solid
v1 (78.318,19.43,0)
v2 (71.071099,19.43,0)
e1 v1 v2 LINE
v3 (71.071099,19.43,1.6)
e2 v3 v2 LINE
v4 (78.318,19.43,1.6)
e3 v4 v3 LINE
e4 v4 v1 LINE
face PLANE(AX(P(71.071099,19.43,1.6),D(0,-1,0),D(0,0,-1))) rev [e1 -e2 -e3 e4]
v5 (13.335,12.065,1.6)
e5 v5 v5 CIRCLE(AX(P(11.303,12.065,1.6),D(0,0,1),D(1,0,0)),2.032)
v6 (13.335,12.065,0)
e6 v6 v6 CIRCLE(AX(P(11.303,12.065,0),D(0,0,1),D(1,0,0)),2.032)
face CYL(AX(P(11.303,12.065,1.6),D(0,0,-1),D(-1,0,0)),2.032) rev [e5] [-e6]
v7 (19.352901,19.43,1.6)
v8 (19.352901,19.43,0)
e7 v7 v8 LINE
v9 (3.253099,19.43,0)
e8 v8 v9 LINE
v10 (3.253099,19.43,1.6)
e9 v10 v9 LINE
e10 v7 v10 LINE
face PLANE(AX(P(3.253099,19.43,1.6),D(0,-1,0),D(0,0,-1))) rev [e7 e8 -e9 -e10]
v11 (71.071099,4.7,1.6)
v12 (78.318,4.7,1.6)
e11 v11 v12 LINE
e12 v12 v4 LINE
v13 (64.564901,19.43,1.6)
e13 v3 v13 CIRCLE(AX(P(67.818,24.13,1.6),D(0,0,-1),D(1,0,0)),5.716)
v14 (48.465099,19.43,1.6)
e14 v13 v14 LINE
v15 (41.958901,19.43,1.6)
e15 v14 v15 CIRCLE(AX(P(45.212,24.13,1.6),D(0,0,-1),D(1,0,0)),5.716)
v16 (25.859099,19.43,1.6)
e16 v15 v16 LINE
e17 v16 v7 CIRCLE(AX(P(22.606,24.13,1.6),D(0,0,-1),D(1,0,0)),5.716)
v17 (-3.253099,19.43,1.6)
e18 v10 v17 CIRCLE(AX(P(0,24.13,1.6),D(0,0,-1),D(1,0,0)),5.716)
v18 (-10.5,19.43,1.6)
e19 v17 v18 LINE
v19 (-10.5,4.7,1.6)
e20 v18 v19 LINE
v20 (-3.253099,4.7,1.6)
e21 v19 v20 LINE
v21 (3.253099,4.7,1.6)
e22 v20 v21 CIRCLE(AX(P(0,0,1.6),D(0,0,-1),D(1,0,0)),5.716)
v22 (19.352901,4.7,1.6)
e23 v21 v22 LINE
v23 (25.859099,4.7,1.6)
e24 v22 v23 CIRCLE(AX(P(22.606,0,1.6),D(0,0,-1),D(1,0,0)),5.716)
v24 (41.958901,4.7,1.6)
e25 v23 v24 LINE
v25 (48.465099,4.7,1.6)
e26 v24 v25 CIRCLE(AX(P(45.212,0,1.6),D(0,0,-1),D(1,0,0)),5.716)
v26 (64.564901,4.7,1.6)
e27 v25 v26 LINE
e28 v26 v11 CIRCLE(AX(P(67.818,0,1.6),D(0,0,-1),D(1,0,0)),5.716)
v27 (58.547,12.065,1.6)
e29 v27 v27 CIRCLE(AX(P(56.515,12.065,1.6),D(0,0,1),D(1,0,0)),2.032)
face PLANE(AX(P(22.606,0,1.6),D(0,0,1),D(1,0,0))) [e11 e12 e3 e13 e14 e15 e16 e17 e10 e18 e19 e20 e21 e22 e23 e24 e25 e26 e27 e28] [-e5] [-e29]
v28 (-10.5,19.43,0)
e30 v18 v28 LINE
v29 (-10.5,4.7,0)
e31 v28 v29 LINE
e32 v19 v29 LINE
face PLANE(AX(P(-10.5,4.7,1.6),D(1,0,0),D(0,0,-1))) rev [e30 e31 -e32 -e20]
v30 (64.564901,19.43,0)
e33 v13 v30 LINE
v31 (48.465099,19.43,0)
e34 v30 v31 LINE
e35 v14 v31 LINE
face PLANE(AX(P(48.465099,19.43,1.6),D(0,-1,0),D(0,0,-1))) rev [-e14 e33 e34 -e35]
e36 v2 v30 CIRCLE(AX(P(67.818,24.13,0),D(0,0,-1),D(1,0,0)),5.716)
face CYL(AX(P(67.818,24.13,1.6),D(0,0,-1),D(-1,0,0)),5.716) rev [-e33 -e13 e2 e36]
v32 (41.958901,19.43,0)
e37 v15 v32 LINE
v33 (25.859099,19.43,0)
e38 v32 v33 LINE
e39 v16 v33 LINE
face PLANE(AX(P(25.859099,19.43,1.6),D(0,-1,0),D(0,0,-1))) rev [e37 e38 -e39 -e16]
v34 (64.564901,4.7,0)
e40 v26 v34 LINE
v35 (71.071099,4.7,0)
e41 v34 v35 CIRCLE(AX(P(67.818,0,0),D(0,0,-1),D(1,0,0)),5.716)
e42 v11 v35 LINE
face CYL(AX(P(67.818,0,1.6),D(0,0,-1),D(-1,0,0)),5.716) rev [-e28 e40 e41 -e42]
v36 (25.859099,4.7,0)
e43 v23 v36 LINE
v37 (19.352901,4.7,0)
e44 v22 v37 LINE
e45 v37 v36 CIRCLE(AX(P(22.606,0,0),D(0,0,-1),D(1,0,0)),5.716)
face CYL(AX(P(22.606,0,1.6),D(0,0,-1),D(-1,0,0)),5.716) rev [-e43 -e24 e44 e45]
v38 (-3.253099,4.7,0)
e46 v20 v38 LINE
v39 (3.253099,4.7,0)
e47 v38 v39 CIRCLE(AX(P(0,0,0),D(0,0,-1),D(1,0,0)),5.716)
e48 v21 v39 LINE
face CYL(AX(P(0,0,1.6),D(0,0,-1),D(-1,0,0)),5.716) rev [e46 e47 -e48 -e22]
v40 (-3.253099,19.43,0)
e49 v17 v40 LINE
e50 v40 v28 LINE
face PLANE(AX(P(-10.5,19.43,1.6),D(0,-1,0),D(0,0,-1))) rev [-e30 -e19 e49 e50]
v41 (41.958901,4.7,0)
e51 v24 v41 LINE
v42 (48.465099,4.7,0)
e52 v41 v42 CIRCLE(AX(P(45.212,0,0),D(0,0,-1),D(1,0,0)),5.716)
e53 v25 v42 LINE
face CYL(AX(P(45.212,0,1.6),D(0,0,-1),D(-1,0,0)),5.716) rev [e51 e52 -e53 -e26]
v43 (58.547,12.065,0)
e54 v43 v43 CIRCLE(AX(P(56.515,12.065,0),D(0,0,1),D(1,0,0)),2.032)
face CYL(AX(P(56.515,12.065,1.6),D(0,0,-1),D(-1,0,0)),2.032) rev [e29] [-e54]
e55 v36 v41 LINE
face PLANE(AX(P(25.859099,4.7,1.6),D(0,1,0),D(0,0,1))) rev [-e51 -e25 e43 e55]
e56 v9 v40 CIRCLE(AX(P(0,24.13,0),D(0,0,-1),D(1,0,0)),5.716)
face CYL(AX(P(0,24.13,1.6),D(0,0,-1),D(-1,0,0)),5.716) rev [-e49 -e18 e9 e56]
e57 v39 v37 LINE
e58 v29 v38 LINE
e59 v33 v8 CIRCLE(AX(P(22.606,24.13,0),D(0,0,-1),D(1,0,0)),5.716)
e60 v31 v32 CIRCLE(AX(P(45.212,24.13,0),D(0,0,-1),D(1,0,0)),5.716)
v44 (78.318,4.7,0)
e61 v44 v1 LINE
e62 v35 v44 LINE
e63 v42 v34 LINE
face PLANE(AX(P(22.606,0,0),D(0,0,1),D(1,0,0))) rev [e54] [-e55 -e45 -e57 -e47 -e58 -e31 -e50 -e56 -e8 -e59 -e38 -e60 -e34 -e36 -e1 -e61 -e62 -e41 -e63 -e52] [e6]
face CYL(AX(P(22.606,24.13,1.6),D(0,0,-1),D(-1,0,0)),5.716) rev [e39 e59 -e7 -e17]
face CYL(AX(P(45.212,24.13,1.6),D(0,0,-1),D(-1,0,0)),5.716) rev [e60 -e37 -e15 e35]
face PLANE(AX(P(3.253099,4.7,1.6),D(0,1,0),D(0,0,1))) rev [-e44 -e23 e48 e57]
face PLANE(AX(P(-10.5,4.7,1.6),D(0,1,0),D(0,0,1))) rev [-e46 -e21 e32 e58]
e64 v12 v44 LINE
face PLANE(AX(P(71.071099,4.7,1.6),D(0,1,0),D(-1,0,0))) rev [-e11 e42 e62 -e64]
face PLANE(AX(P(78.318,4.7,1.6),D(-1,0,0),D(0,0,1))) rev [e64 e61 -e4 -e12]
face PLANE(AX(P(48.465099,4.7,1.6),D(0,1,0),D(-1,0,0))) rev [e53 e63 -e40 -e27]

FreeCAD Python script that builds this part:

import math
import FreeCAD as App
import Part
import Sketcher
Q = App.Units.Quantity

doc = App.newDocument("Part")
body = doc.addObject("PartDesign::Body", "Body")

sketch1 = body.newObject("Sketcher::SketchObject", "Sketch")
sketch1.AttachmentSupport = (doc.getObject("XY_Plane"), [""])
sketch1.MapMode = "FlatFace"
sketch1.addGeometry([
    Part.LineSegment(App.Vector(19.4, 19.4, 0), App.Vector(3.3, 19.4, 0)),
    Part.ArcOfCircle(Part.Circle(App.Vector(0, 24.1, 0), App.Vector(0, 0, 1), 5.7), math.radians(-125), math.radians(-55)),
    Part.LineSegment(App.Vector(-3.3, 19.4, 0), App.Vector(-10.5, 19.4, 0)),
    Part.LineSegment(App.Vector(-10.5, 19.4, 0), App.Vector(-10.5, 4.7, 0)),
    Part.LineSegment(App.Vector(-10.5, 4.7, 0), App.Vector(-3.3, 4.7, 0)),
    Part.ArcOfCircle(Part.Circle(App.Vector(0, 0, 0), App.Vector(0, 0, 1), 5.7), math.radians(55), math.radians(125)),
    Part.LineSegment(App.Vector(3.3, 4.7, 0), App.Vector(19.4, 4.7, 0)),
    Part.ArcOfCircle(Part.Circle(App.Vector(22.6, 0, 0), App.Vector(0, 0, 1), 5.7), math.radians(55), math.radians(125)),
    Part.LineSegment(App.Vector(25.9, 4.7, 0), App.Vector(42, 4.7, 0)),
    Part.ArcOfCircle(Part.Circle(App.Vector(45.2, 0, 0), App.Vector(0, 0, 1), 5.7), math.radians(55), math.radians(125)),
    Part.LineSegment(App.Vector(48.5, 4.7, 0), App.Vector(64.6, 4.7, 0)),
    Part.ArcOfCircle(Part.Circle(App.Vector(67.8, 0, 0), App.Vector(0, 0, 1), 5.7), math.radians(55), math.radians(125)),
    Part.LineSegment(App.Vector(71.1, 4.7, 0), App.Vector(78.3, 4.7, 0)),
    Part.LineSegment(App.Vector(78.3, 4.7, 0), App.Vector(78.3, 19.4, 0)),
    Part.LineSegment(App.Vector(78.3, 19.4, 0), App.Vector(71.1, 19.4, 0)),
    Part.ArcOfCircle(Part.Circle(App.Vector(67.8, 24.1, 0), App.Vector(0, 0, 1), 5.7), math.radians(-125), math.radians(-55)),
    Part.LineSegment(App.Vector(64.6, 19.4, 0), App.Vector(48.5, 19.4, 0)),
    Part.ArcOfCircle(Part.Circle(App.Vector(45.2, 24.1, 0), App.Vector(0, 0, 1), 5.7), math.radians(-125), math.radians(-55)),
    Part.LineSegment(App.Vector(42, 19.4, 0), App.Vector(25.9, 19.4, 0)),
    Part.ArcOfCircle(Part.Circle(App.Vector(22.6, 24.1, 0), App.Vector(0, 0, 1), 5.7), math.radians(-125), math.radians(-55)),
    Part.Circle(App.Vector(56.5, 12.1, 0), App.Vector(0, 0, 1), 2),
    Part.Circle(App.Vector(11.3, 12.1, 0), App.Vector(0, 0, 1), 2),
], False)
sketch1.addConstraint([
    Sketcher.Constraint("Coincident", 0, 2, 1, 2),
    Sketcher.Constraint("Coincident", 1, 1, 2, 1),
    Sketcher.Constraint("Coincident", 2, 2, 3, 1),
    Sketcher.Constraint("Coincident", 3, 2, 4, 1),
    Sketcher.Constraint("Coincident", 4, 2, 5, 2),
    Sketcher.Constraint("Coincident", 5, 1, 6, 1),
    Sketcher.Constraint("Coincident", 6, 2, 7, 2),
    Sketcher.Constraint("Coincident", 7, 1, 8, 1),
    Sketcher.Constraint("Coincident", 8, 2, 9, 2),
    Sketcher.Constraint("Coincident", 9, 1, 10, 1),
    Sketcher.Constraint("Coincident", 10, 2, 11, 2),
    Sketcher.Constraint("Coincident", 11, 1, 12, 1),
    Sketcher.Constraint("Coincident", 12, 2, 13, 1),
    Sketcher.Constraint("Coincident", 13, 2, 14, 1),
    Sketcher.Constraint("Coincident", 14, 2, 15, 2),
    Sketcher.Constraint("Coincident", 15, 1, 16, 1),
    Sketcher.Constraint("Coincident", 16, 2, 17, 2),
    Sketcher.Constraint("Coincident", 17, 1, 18, 1),
    Sketcher.Constraint("Coincident", 18, 2, 19, 2),
    Sketcher.Constraint("Coincident", 19, 1, 0, 1),
    Sketcher.Constraint("Horizontal", 0),
    Sketcher.Constraint("Horizontal", 2),
    Sketcher.Constraint("Vertical", 3),
    Sketcher.Constraint("Horizontal", 4),
    Sketcher.Constraint("Horizontal", 6),
    Sketcher.Constraint("Horizontal", 8),
    Sketcher.Constraint("Horizontal", 10),
    Sketcher.Constraint("Horizontal", 12),
    Sketcher.Constraint("Vertical", 13),
    Sketcher.Constraint("Horizontal", 14),
    Sketcher.Constraint("Horizontal", 16),
    Sketcher.Constraint("Horizontal", 18),
    Sketcher.Constraint("Coincident", 5, 3, -1, 1),
    Sketcher.Constraint("Equal", 1, 5),
    Sketcher.Constraint("Equal", 5, 7),
    Sketcher.Constraint("Equal", 7, 9),
    Sketcher.Constraint("Equal", 9, 11),
    Sketcher.Constraint("Equal", 11, 15),
    Sketcher.Constraint("Equal", 15, 17),
    Sketcher.Constraint("Equal", 17, 19),
    Sketcher.Constraint("Equal", 20, 21),
    Sketcher.Constraint("Symmetric", 0, 2, 1, 1, -2),
    Sketcher.Constraint("PointOnObject", 7, 3, -1),
    Sketcher.Constraint("PointOnObject", 9, 3, -1),
    Sketcher.Constraint("PointOnObject", 11, 3, -1),
    Sketcher.Constraint("Horizontal", 1, 3, 15, 3),
    Sketcher.Constraint("Horizontal", 15, 3, 17, 3),
    Sketcher.Constraint("Horizontal", 17, 3, 19, 3),
    Sketcher.Constraint("Horizontal", 20, 3, 21, 3),
    Sketcher.Constraint("Horizontal", 4, 2, 5, 1),
    Sketcher.Constraint("Horizontal", 6, 2, 7, 1),
    Sketcher.Constraint("Horizontal", 8, 2, 9, 1),
    Sketcher.Constraint("Horizontal", 10, 2, 11, 1),
    Sketcher.Constraint("Horizontal", 2, 2, 13, 2),
    Sketcher.Constraint("Horizontal", 14, 2, 15, 1),
    Sketcher.Constraint("Horizontal", 16, 2, 17, 1),
    Sketcher.Constraint("Vertical", 11, 3, 15, 3),
    Sketcher.Constraint("Vertical", 9, 3, 17, 3),
    Sketcher.Constraint("Vertical", 7, 3, 19, 3),
    Sketcher.Constraint("Vertical", 1, 1, 4, 2),
    Sketcher.Constraint("Equal", 6, 8),
    Sketcher.Constraint("Equal", 8, 10),
    Sketcher.Constraint("Equal", 4, 12),
    Sketcher.Constraint("Diameter", 20, Q("4.064 mm")),
    Sketcher.Constraint("Radius", 1, Q("5.716 mm")),
    Sketcher.Constraint("DistanceY", 3, 2, 3, 1, Q("14.73 mm")),
    Sketcher.Constraint("DistanceX", 2, 2, -1, 1, Q("10.5 mm")),
    Sketcher.Constraint("DistanceY", -1, 1, 3, 2, Q("4.7 mm")),
    Sketcher.Constraint("DistanceX", 0, 2, 0, 1, Q("16.099801 mm")),
    Sketcher.Constraint("DistanceX", -1, 1, 20, 3, Q("56.515 mm")),
    Sketcher.Constraint("DistanceY", -1, 1, 20, 3, Q("12.065 mm")),
    Sketcher.Constraint("DistanceX", -1, 1, 21, 3, Q("11.303 mm")),
])
pad1 = body.newObject("PartDesign::Pad", "Pad")
pad1.Profile = sketch1
pad1.Length = 1.6

doc.recompute()
